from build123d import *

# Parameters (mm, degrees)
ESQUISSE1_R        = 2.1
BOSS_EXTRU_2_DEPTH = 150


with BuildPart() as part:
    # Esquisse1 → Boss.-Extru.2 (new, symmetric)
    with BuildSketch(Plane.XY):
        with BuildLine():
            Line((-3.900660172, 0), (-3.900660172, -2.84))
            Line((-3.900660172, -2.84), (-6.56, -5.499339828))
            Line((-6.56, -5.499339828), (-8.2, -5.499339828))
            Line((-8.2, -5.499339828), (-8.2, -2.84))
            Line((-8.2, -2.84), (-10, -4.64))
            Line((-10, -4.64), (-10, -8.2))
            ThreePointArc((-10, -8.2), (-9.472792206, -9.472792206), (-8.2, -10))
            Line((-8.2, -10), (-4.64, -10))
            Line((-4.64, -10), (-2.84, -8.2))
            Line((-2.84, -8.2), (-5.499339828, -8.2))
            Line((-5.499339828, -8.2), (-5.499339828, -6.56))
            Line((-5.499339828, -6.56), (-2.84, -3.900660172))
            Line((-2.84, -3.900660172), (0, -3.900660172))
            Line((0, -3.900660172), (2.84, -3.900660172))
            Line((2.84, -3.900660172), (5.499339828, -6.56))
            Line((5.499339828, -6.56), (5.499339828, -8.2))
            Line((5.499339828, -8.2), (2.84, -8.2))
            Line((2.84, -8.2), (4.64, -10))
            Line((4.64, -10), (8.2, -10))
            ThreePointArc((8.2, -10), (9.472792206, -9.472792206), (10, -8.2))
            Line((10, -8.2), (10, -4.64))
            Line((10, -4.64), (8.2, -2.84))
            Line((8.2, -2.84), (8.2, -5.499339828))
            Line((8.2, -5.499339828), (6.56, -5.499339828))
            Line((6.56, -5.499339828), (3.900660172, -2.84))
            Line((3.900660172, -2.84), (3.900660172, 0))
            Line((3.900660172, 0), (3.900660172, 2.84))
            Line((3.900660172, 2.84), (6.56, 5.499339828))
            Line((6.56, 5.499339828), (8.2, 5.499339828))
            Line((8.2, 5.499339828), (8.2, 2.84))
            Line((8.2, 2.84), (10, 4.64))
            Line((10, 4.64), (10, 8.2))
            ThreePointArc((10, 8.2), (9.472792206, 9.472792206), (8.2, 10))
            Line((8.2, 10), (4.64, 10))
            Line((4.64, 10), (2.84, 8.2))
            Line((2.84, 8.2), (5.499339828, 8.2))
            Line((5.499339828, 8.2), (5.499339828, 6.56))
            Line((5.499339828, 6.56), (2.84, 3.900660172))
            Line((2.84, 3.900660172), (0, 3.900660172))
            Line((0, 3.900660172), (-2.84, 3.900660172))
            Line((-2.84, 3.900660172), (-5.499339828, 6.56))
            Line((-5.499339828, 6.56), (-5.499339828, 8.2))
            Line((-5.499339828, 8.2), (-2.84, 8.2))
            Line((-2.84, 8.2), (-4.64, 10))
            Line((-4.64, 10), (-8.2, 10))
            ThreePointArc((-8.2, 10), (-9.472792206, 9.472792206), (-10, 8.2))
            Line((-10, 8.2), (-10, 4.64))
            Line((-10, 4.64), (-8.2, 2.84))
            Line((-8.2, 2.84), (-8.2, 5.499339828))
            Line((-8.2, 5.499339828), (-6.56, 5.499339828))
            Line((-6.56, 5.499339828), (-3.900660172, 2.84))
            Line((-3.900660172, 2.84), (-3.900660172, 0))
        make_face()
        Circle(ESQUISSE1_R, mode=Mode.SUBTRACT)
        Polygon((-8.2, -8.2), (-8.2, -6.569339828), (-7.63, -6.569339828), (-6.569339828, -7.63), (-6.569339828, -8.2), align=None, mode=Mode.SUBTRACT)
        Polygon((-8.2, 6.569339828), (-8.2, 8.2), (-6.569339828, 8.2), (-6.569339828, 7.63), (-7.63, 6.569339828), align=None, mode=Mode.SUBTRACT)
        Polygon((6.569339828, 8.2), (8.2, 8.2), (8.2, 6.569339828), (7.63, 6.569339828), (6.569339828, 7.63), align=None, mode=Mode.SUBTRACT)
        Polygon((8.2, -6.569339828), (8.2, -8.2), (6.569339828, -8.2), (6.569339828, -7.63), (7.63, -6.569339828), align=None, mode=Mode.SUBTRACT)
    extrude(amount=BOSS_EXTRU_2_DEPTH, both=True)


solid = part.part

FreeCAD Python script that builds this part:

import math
import FreeCAD as App
import Part
import Sketcher
from FreeCAD import Vector

doc = App.newDocument("Part")
body = doc.addObject("PartDesign::Body", "Body")

# Sketch on XY plane
sketch1 = body.newObject("Sketcher::SketchObject", "Sketch")
sketch1.AttachmentSupport = (doc.getObject("XY_Plane"), [""])
sketch1.MapMode = "FlatFace"
sketch1.addGeometry([
    Part.LineSegment(Vector(-3.90066, -2.84, 0), Vector(-6.56, -5.49934, 0)),  # 0
    Part.LineSegment(Vector(-6.56, -5.49934, 0), Vector(-8.2, -5.49934, 0)),  # 1
    Part.LineSegment(Vector(-8.2, -5.49934, 0), Vector(-8.2, -2.84, 0)),  # 2
    Part.LineSegment(Vector(-8.2, -2.84, 0), Vector(-10, -4.64, 0)),  # 3
    Part.LineSegment(Vector(-10, -4.64, 0), Vector(-10, -8.2, 0)),  # 4
    Part.ArcOfCircle(Part.Circle(Vector(-8.2, -8.2, 0), Vector(0, 0, 1), 1.8), math.radians(180), math.radians(270)),  # 5
    Part.LineSegment(Vector(-8.2, -10, 0), Vector(-4.64, -10, 0)),  # 6
    Part.LineSegment(Vector(-4.64, -10, 0), Vector(-2.84, -8.2, 0)),  # 7
    Part.LineSegment(Vector(-2.84, -8.2, 0), Vector(-5.49934, -8.2, 0)),  # 8
    Part.LineSegment(Vector(-5.49934, -8.2, 0), Vector(-5.49934, -6.56, 0)),  # 9
    Part.LineSegment(Vector(-5.49934, -6.56, 0), Vector(-2.84, -3.90066, 0)),  # 10
    Part.LineSegment(Vector(-2.84, -3.90066, 0), Vector(2.84, -3.90066, 0)),  # 11
    Part.LineSegment(Vector(2.84, -3.90066, 0), Vector(5.49934, -6.56, 0)),  # 12
    Part.LineSegment(Vector(5.49934, -6.56, 0), Vector(5.49934, -8.2, 0)),  # 13
    Part.LineSegment(Vector(5.49934, -8.2, 0), Vector(2.84, -8.2, 0)),  # 14
    Part.LineSegment(Vector(2.84, -8.2, 0), Vector(4.64, -10, 0)),  # 15
    Part.LineSegment(Vector(4.64, -10, 0), Vector(8.2, -10, 0)),  # 16
    Part.ArcOfCircle(Part.Circle(Vector(8.2, -8.2, 0), Vector(0, 0, 1), 1.8), math.radians(-90), math.radians(0)),  # 17
    Part.LineSegment(Vector(10, -8.2, 0), Vector(10, -4.64, 0)),  # 18
    Part.LineSegment(Vector(10, -4.64, 0), Vector(8.2, -2.84, 0)),  # 19
    Part.LineSegment(Vector(8.2, -2.84, 0), Vector(8.2, -5.49934, 0)),  # 20
    Part.LineSegment(Vector(8.2, -5.49934, 0), Vector(6.56, -5.49934, 0)),  # 21
    Part.LineSegment(Vector(6.56, -5.49934, 0), Vector(3.90066, -2.84, 0)),  # 22
    Part.LineSegment(Vector(3.90066, -2.84, 0), Vector(3.90066, 2.84, 0)),  # 23
    Part.LineSegment(Vector(3.90066, 2.84, 0), Vector(6.56, 5.49934, 0)),  # 24
    Part.LineSegment(Vector(6.56, 5.49934, 0), Vector(8.2, 5.49934, 0)),  # 25
    Part.LineSegment(Vector(8.2, 5.49934, 0), Vector(8.2, 2.84, 0)),  # 26
    Part.LineSegment(Vector(8.2, 2.84, 0), Vector(10, 4.64, 0)),  # 27
    Part.LineSegment(Vector(10, 4.64, 0), Vector(10, 8.2, 0)),  # 28
    Part.ArcOfCircle(Part.Circle(Vector(8.2, 8.2, 0), Vector(0, 0, 1), 1.8), math.radians(0), math.radians(90)),  # 29
    Part.LineSegment(Vector(8.2, 10, 0), Vector(4.64, 10, 0)),  # 30
    Part.LineSegment(Vector(4.64, 10, 0), Vector(2.84, 8.2, 0)),  # 31
    Part.LineSegment(Vector(2.84, 8.2, 0), Vector(5.49934, 8.2, 0)),  # 32
    Part.LineSegment(Vector(5.49934, 8.2, 0), Vector(5.49934, 6.56, 0)),  # 33
    Part.LineSegment(Vector(5.49934, 6.56, 0), Vector(2.84, 3.90066, 0)),  # 34
    Part.LineSegment(Vector(2.84, 3.90066, 0), Vector(-2.84, 3.90066, 0)),  # 35
    Part.LineSegment(Vector(-2.84, 3.90066, 0), Vector(-5.49934, 6.56, 0)),  # 36
    Part.LineSegment(Vector(-5.49934, 6.56, 0), Vector(-5.49934, 8.2, 0)),  # 37
    Part.LineSegment(Vector(-5.49934, 8.2, 0), Vector(-2.84, 8.2, 0)),  # 38
    Part.LineSegment(Vector(-2.84, 8.2, 0), Vector(-4.64, 10, 0)),  # 39
    Part.LineSegment(Vector(-4.64, 10, 0), Vector(-8.2, 10, 0)),  # 40
    Part.ArcOfCircle(Part.Circle(Vector(-8.2, 8.2, 0), Vector(0, 0, 1), 1.8), math.radians(90), math.radians(180)),  # 41
    Part.LineSegment(Vector(-10, 8.2, 0), Vector(-10, 4.64, 0)),  # 42
    Part.LineSegment(Vector(-10, 4.64, 0), Vector(-8.2, 2.84, 0)),  # 43
    Part.LineSegment(Vector(-8.2, 2.84, 0), Vector(-8.2, 5.49934, 0)),  # 44
    Part.LineSegment(Vector(-8.2, 5.49934, 0), Vector(-6.56, 5.49934, 0)),  # 45
    Part.LineSegment(Vector(-6.56, 5.49934, 0), Vector(-3.90066, 2.84, 0)),  # 46
    Part.LineSegment(Vector(-3.90066, 2.84, 0), Vector(-3.90066, -2.84, 0)),  # 47
    Part.LineSegment(Vector(-6.56934, -8.2, 0), Vector(-8.2, -8.2, 0)),  # 48
    Part.LineSegment(Vector(-8.2, -8.2, 0), Vector(-8.2, -6.56934, 0)),  # 49
    Part.LineSegment(Vector(-8.2, -6.56934, 0), Vector(-7.63, -6.56934, 0)),  # 50
    Part.LineSegment(Vector(-7.63, -6.56934, 0), Vector(-6.56934, -7.63, 0)),  # 51
    Part.LineSegment(Vector(-6.56934, -7.63, 0), Vector(-6.56934, -8.2, 0)),  # 52
    Part.LineSegment(Vector(7.63, -6.56934, 0), Vector(8.2, -6.56934, 0)),  # 53
    Part.LineSegment(Vector(8.2, -6.56934, 0), Vector(8.2, -8.2, 0)),  # 54
    Part.LineSegment(Vector(8.2, -8.2, 0), Vector(6.56934, -8.2, 0)),  # 55
    Part.LineSegment(Vector(6.56934, -8.2, 0), Vector(6.56934, -7.63, 0)),  # 56
    Part.LineSegment(Vector(6.56934, -7.63, 0), Vector(7.63, -6.56934, 0)),  # 57
    Part.LineSegment(Vector(-7.63, 6.56934, 0), Vector(-8.2, 6.56934, 0)),  # 58
    Part.LineSegment(Vector(-8.2, 6.56934, 0), Vector(-8.2, 8.2, 0)),  # 59
    Part.LineSegment(Vector(-8.2, 8.2, 0), Vector(-6.56934, 8.2, 0)),  # 60
    Part.LineSegment(Vector(-6.56934, 8.2, 0), Vector(-6.56934, 7.63, 0)),  # 61
    Part.LineSegment(Vector(-6.56934, 7.63, 0), Vector(-7.63, 6.56934, 0)),  # 62
    Part.Circle(Vector(0, 0, 0), Vector(0, 0, 1), 2.1),  # 63
    Part.LineSegment(Vector(6.56934, 7.63, 0), Vector(6.56934, 8.2, 0)),  # 64
    Part.LineSegment(Vector(6.56934, 8.2, 0), Vector(8.2, 8.2, 0)),  # 65
    Part.LineSegment(Vector(8.2, 8.2, 0), Vector(8.2, 6.56934, 0)),  # 66
    Part.LineSegment(Vector(8.2, 6.56934, 0), Vector(7.63, 6.56934, 0)),  # 67
    Part.LineSegment(Vector(7.63, 6.56934, 0), Vector(6.56934, 7.63, 0)),  # 68
], False)
sketch1.addConstraint([
    Sketcher.Constraint("Coincident", 0, 2, 1, 1),
    Sketcher.Constraint("Coincident", 1, 2, 2, 1),
    Sketcher.Constraint("Coincident", 2, 2, 3, 1),
    Sketcher.Constraint("Coincident", 3, 2, 4, 1),
    Sketcher.Constraint("Tangent", 4, 2, 5, 1),
    Sketcher.Constraint("Tangent", 5, 2, 6, 1),
    Sketcher.Constraint("Coincident", 6, 2, 7, 1),
    Sketcher.Constraint("Coincident", 7, 2, 8, 1),
    Sketcher.Constraint("Coincident", 8, 2, 9, 1),
    Sketcher.Constraint("Coincident", 9, 2, 10, 1),
    Sketcher.Constraint("Coincident", 10, 2, 11, 1),
    Sketcher.Constraint("Coincident", 11, 2, 12, 1),
    Sketcher.Constraint("Coincident", 12, 2, 13, 1),
    Sketcher.Constraint("Coincident", 13, 2, 14, 1),
    Sketcher.Constraint("Coincident", 14, 2, 15, 1),
    Sketcher.Constraint("Coincident", 15, 2, 16, 1),
    Sketcher.Constraint("Tangent", 16, 2, 17, 1),
    Sketcher.Constraint("Tangent", 17, 2, 18, 1),
    Sketcher.Constraint("Coincident", 18, 2, 19, 1),
    Sketcher.Constraint("Coincident", 19, 2, 20, 1),
    Sketcher.Constraint("Coincident", 20, 2, 21, 1),
    Sketcher.Constraint("Coincident", 21, 2, 22, 1),
    Sketcher.Constraint("Coincident", 22, 2, 23, 1),
    Sketcher.Constraint("Coincident", 23, 2, 24, 1),
    Sketcher.Constraint("Coincident", 24, 2, 25, 1),
    Sketcher.Constraint("Coincident", 25, 2, 26, 1),
    Sketcher.Constraint("Coincident", 26, 2, 27, 1),
    Sketcher.Constraint("Coincident", 27, 2, 28, 1),
    Sketcher.Constraint("Tangent", 28, 2, 29, 1),
    Sketcher.Constraint("Tangent", 29, 2, 30, 1),
    Sketcher.Constraint("Coincident", 30, 2, 31, 1),
    Sketcher.Constraint("Coincident", 31, 2, 32, 1),
    Sketcher.Constraint("Coincident", 32, 2, 33, 1),
    Sketcher.Constraint("Coincident", 33, 2, 34, 1),
    Sketcher.Constraint("Coincident", 34, 2, 35, 1),
    Sketcher.Constraint("Coincident", 35, 2, 36, 1),
    Sketcher.Constraint("Coincident", 36, 2, 37, 1),
    Sketcher.Constraint("Coincident", 37, 2, 38, 1),
    Sketcher.Constraint("Coincident", 38, 2, 39, 1),
    Sketcher.Constraint("Coincident", 39, 2, 40, 1),
    Sketcher.Constraint("Tangent", 40, 2, 41, 1),
    Sketcher.Constraint("Tangent", 41, 2, 42, 1),
    Sketcher.Constraint("Coincident", 42, 2, 43, 1),
    Sketcher.Constraint("Coincident", 43, 2, 44, 1),
    Sketcher.Constraint("Coincident", 44, 2, 45, 1),
    Sketcher.Constraint("Coincident", 45, 2, 46, 1),
    Sketcher.Constraint("Coincident", 46, 2, 47, 1),
    Sketcher.Constraint("Coincident", 47, 2, 0, 1),
    Sketcher.Constraint("Coincident", 48, 2, 49, 1),
    Sketcher.Constraint("Coincident", 49, 2, 50, 1),
    Sketcher.Constraint("Coincident", 50, 2, 51, 1),
    Sketcher.Constraint("Coincident", 51, 2, 52, 1),
    Sketcher.Constraint("Coincident", 52, 2, 48, 1),
    Sketcher.Constraint("Coincident", 53, 2, 54, 1),
    Sketcher.Constraint("Coincident", 54, 2, 55, 1),
    Sketcher.Constraint("Coincident", 55, 2, 56, 1),
    Sketcher.Constraint("Coincident", 56, 2, 57, 1),
    Sketcher.Constraint("Coincident", 57, 2, 53, 1),
    Sketcher.Constraint("Coincident", 58, 2, 59, 1),
    Sketcher.Constraint("Coincident", 59, 2, 60, 1),
    Sketcher.Constraint("Coincident", 60, 2, 61, 1),
    Sketcher.Constraint("Coincident", 61, 2, 62, 1),
    Sketcher.Constraint("Coincident", 62, 2, 58, 1),
    Sketcher.Constraint("Coincident", 64, 2, 65, 1),
    Sketcher.Constraint("Coincident", 65, 2, 66, 1),
    Sketcher.Constraint("Coincident", 66, 2, 67, 1),
    Sketcher.Constraint("Coincident", 67, 2, 68, 1),
    Sketcher.Constraint("Coincident", 68, 2, 64, 1),
    Sketcher.Constraint("Horizontal", 1),
    Sketcher.Constraint("Vertical", 2),
    Sketcher.Constraint("Vertical", 4),
    Sketcher.Constraint("Horizontal", 6),
    Sketcher.Constraint("Horizontal", 8),
    Sketcher.Constraint("Vertical", 9),
    Sketcher.Constraint("Horizontal", 11),
    Sketcher.Constraint("Vertical", 13),
    Sketcher.Constraint("Horizontal", 14),
    Sketcher.Constraint("Horizontal", 16),
    Sketcher.Constraint("Vertical", 18),
    Sketcher.Constraint("Vertical", 20),
    Sketcher.Constraint("Horizontal", 21),
    Sketcher.Constraint("Vertical", 23),
    Sketcher.Constraint("Horizontal", 25),
    Sketcher.Constraint("Vertical", 26),
    Sketcher.Constraint("Vertical", 28),
    Sketcher.Constraint("Horizontal", 30),
    Sketcher.Constraint("Horizontal", 32),
    Sketcher.Constraint("Vertical", 33),
    Sketcher.Constraint("Horizontal", 35),
    Sketcher.Constraint("Vertical", 37),
    Sketcher.Constraint("Horizontal", 38),
    Sketcher.Constraint("Horizontal", 40),
    Sketcher.Constraint("Vertical", 42),
    Sketcher.Constraint("Vertical", 44),
    Sketcher.Constraint("Horizontal", 45),
    Sketcher.Constraint("Vertical", 47),
    Sketcher.Constraint("Horizontal", 48),
    Sketcher.Constraint("Vertical", 49),
    Sketcher.Constraint("Horizontal", 50),
    Sketcher.Constraint("Vertical", 52),
    Sketcher.Constraint("Horizontal", 53),
    Sketcher.Constraint("Vertical", 54),
    Sketcher.Constraint("Horizontal", 55),
    Sketcher.Constraint("Vertical", 56),
    Sketcher.Constraint("Horizontal", 58),
    Sketcher.Constraint("Vertical", 59),
    Sketcher.Constraint("Horizontal", 60),
    Sketcher.Constraint("Vertical", 61),
    Sketcher.Constraint("Vertical", 64),
    Sketcher.Constraint("Horizontal", 65),
    Sketcher.Constraint("Vertical", 66),
    Sketcher.Constraint("Horizontal", 67),
    Sketcher.Constraint("Coincident", 63, 3, -1, 1),
    Sketcher.Constraint("Coincident", 48, 2, 5, 3),
    Sketcher.Constraint("Coincident", 54, 2, 17, 3),
    Sketcher.Constraint("Coincident", 59, 2, 41, 3),
    Sketcher.Constraint("Coincident", 65, 2, 29, 3),
    Sketcher.Constraint("Equal", 5, 17),
    Sketcher.Constraint("Equal", 17, 29),
    Sketcher.Constraint("Equal", 29, 41),
    Sketcher.Constraint("Symmetric", 5, 3, 29, 3, -1, 1),
    Sketcher.Constraint("Symmetric", 17, 3, 41, 3, -1, 1),
    Sketcher.Constraint("Symmetric", 0, 2, 24, 2, -1, 1),
    Sketcher.Constraint("Symmetric", 2, 2, 26, 2, -1, 1),
    Sketcher.Constraint("Symmetric", 7, 2, 31, 2, -1, 1),
    Sketcher.Constraint("Symmetric", 9, 2, 33, 2, -1, 1),
    Sketcher.Constraint("Symmetric", 10, 2, 34, 2, -1, 1),
    Sketcher.Constraint("Symmetric", 12, 2, 36, 2, -1, 1),
    Sketcher.Constraint("Symmetric", 14, 2, 38, 2, -1, 1),
    Sketcher.Constraint("Symmetric", 19, 2, 43, 2, -1, 1),
    Sketcher.Constraint("Symmetric", 21, 2, 45, 2, -1, 1),
    Sketcher.Constraint("Symmetric", 22, 2, 46, 2, -1, 1),
    Sketcher.Constraint("Symmetric", 56, 2, 61, 2, -1, 1),
    Sketcher.Constraint("Symmetric", 57, 2, 62, 2, -1, 1),
    Sketcher.Constraint("Symmetric", 50, 2, 67, 2, -1, 1),
    Sketcher.Constraint("Symmetric", 51, 2, 68, 2, -1, 1),
    Sketcher.Constraint("Symmetric", 5, 3, 17, 3, -2),
    Sketcher.Constraint("Symmetric", 9, 2, 12, 2, -2),
    Sketcher.Constraint("Symmetric", 7, 2, 14, 2, -2),
    Sketcher.Constraint("Symmetric", 2, 2, 19, 2, -2),
    Sketcher.Constraint("Symmetric", 0, 2, 21, 2, -2),
    Sketcher.Constraint("Symmetric", 51, 2, 56, 2, -2),
    Sketcher.Constraint("Symmetric", 50, 2, 57, 2, -2),
    Sketcher.Constraint("Parallel", 0, 3),
    Sketcher.Constraint("Parallel", 3, 7),
    Sketcher.Constraint("Parallel", 7, 10),
    Sketcher.Constraint("Perpendicular", 10, 12),
    Sketcher.Constraint("Parallel", 12, 15),
    Sketcher.Constraint("Parallel", 15, 19),
    Sketcher.Constraint("Parallel", 19, 22),
    Sketcher.Constraint("Perpendicular", 22, 24),
    Sketcher.Constraint("Parallel", 24, 27),
    Sketcher.Constraint("Parallel", 27, 31),
    Sketcher.Constraint("Perpendicular", 34, 36),
    Sketcher.Constraint("Parallel", 36, 39),
    Sketcher.Constraint("Parallel", 39, 43),
    Sketcher.Constraint("Parallel", 46, 51),
    Sketcher.Constraint("Perpendicular", 51, 57),
    Sketcher.Constraint("Horizontal", 4, 2, 7, 2),
    Sketcher.Constraint("Horizontal", 19, 2, 22, 2),
    Sketcher.Constraint("Vertical", 41, 3, 1, 2),
    Sketcher.Constraint("Vertical", 7, 2, 10, 2),
    Sketcher.Constraint("Equal", 38, 2),
    Sketcher.Constraint("Equal", 40, 4),
    Sketcher.Constraint("Equal", 45, 9),
    Sketcher.Constraint("Equal", 35, 23),
    Sketcher.Constraint("Equal", 65, 49),
    Sketcher.Constraint("Diameter", 63, 4.2),
    Sketcher.Constraint("Radius", 5, 1.8),
    Sketcher.Constraint("DistanceX", 3, 2, -1, 1, 10.0),
    Sketcher.Constraint("Distance", 51, 1.5),
    Sketcher.Constraint("DistanceX", 1, 2, 1, 1, 1.64),
    Sketcher.Constraint("DistanceX", 6, 1, 6, 2, 3.56),
    Sketcher.Constraint("DistanceX", 50, 1, 50, 2, 0.57),
    Sketcher.Constraint("DistanceX", 8, 2, 8, 1, 2.65934),
])
pad1 = body.newObject("PartDesign::Pad", "Pad")
pad1.Profile = sketch1
pad1.Length = 300
pad1.Midplane = True

doc.recompute()
